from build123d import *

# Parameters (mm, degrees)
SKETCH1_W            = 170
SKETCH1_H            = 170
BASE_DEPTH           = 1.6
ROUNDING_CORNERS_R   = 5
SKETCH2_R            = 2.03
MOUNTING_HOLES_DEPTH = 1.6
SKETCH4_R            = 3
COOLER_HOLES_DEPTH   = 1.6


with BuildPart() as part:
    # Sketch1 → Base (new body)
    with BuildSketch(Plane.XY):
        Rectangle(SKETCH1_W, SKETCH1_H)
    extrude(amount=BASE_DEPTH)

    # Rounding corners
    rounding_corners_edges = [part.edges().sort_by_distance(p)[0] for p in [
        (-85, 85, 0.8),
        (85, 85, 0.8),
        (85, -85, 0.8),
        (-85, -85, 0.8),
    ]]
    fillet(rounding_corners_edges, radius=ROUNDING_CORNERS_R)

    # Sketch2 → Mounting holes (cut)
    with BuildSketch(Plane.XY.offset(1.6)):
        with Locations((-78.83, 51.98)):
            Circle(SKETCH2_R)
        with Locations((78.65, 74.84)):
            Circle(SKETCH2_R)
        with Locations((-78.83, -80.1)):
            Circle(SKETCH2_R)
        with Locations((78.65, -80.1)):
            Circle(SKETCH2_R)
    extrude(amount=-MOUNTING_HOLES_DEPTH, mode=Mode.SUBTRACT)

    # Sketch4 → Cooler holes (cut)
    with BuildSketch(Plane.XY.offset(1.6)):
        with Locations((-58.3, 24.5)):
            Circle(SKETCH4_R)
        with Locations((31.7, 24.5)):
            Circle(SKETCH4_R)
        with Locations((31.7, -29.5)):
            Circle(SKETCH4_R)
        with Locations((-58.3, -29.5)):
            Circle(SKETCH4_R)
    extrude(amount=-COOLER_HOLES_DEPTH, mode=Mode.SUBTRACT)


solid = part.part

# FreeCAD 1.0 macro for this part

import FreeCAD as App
import Part
import Sketcher
from FreeCAD import Vector


def edges_at(feature, points):
    """Names of the edges that pass closest to the given points."""
    edges = feature.Shape.Edges
    near = lambda p: min(range(len(edges)), key=lambda i: edges[i].distToShape(Part.Vertex(*p))[0])
    return sorted({f"Edge{near(p) + 1}" for p in points})


def add_polygon(sketch, points):
    """Adds a closed chain of lines whose ends are joined by coincident constraints."""
    first, n = sketch.GeometryCount, len(points)
    for a, b in zip(points, points[1:] + points[:1]):
        sketch.addGeometry(Part.LineSegment(App.Vector(*a, 0), App.Vector(*b, 0)), False)
    for i in range(n):
        sketch.addConstraint(Sketcher.Constraint("Coincident", first + i, 2, first + (i + 1) % n, 1))

doc = App.newDocument("Part")
body = doc.addObject("PartDesign::Body", "Body")

# Sketch on XY plane
sketch1 = doc.addObject("Sketcher::SketchObject", "Sketch")
body.addObject(sketch1)
sketch1.AttachmentSupport = (doc.XY_Plane, [""])
sketch1.MapMode = "FlatFace"
add_polygon(sketch1, [(-85, 85), (-85, -85), (85, -85), (85, 85)])  # lines 0-3
sketch1.addConstraint(Sketcher.Constraint("Vertical", 0))
sketch1.addConstraint(Sketcher.Constraint("Horizontal", 1))
sketch1.addConstraint(Sketcher.Constraint("Vertical", 2))
sketch1.addConstraint(Sketcher.Constraint("Horizontal", 3))
sketch1.addConstraint(Sketcher.Constraint("Symmetric", 0, 2, 2, 2, -1, 1))
sketch1.addConstraint(Sketcher.Constraint("Equal", 3, 0))
sketch1.addConstraint(Sketcher.Constraint("DistanceX", 1, 1, 1, 2, 170.0))
pad1 = doc.addObject("PartDesign::Pad", "Pad")
body.addObject(pad1)
pad1.Profile = sketch1
pad1.Length = 1.6
doc.recompute()

fillet = doc.addObject("PartDesign::Fillet", "Fillet")
body.addObject(fillet)
fillet.Base = (pad1, edges_at(pad1, [
    (-85, 85, 0.8),
    (85, 85, 0.8),
    (85, -85, 0.8),
    (-85, -85, 0.8),
]))
fillet.Radius = 5

# Sketch on XY plane
sketch2 = doc.addObject("Sketcher::SketchObject", "Sketch001")
body.addObject(sketch2)
sketch2.AttachmentSupport = (doc.XY_Plane, [""])
sketch2.MapMode = "FlatFace"
sketch2.AttachmentOffset = App.Placement(Vector(0, 0, 1.6), App.Rotation())
sketch2.addGeometry(Part.Circle(Vector(-78.8, 52, 0), Vector(0, 0, 1), 2), False)
sketch2.addGeometry(Part.Circle(Vector(78.7, 74.8, 0), Vector(0, 0, 1), 2), False)
sketch2.addGeometry(Part.Circle(Vector(-78.8, -80.1, 0), Vector(0, 0, 1), 2), False)
sketch2.addGeometry(Part.Circle(Vector(78.7, -80.1, 0), Vector(0, 0, 1), 2), False)
sketch2.addConstraint(Sketcher.Constraint("Equal", 0, 1))
sketch2.addConstraint(Sketcher.Constraint("Equal", 1, 2))
sketch2.addConstraint(Sketcher.Constraint("Equal", 2, 3))
sketch2.addConstraint(Sketcher.Constraint("Horizontal", 2, 3, 3, 3))
sketch2.addConstraint(Sketcher.Constraint("Vertical", 0, 3, 2, 3))
sketch2.addConstraint(Sketcher.Constraint("Vertical", 1, 3, 3, 3))
sketch2.addConstraint(Sketcher.Constraint("Diameter", 0, 4.06))
sketch2.addConstraint(Sketcher.Constraint("DistanceY", 2, 3, -1, 1, 80.1))
sketch2.addConstraint(Sketcher.Constraint("DistanceX", 0, 3, -1, 1, 78.83))
sketch2.addConstraint(Sketcher.Constraint("DistanceY", -1, 1, 0, 3, 51.98))
sketch2.addConstraint(Sketcher.Constraint("DistanceX", -1, 1, 1, 3, 78.65))
sketch2.addConstraint(Sketcher.Constraint("DistanceY", -1, 1, 1, 3, 74.84))
pocket1 = doc.addObject("PartDesign::Pocket", "Pocket")
body.addObject(pocket1)
pocket1.Profile = sketch2
pocket1.Length = 1.6

# Sketch on XY plane
sketch3 = doc.addObject("Sketcher::SketchObject", "Sketch002")
body.addObject(sketch3)
sketch3.AttachmentSupport = (doc.XY_Plane, [""])
sketch3.MapMode = "FlatFace"
sketch3.AttachmentOffset = App.Placement(Vector(0, 0, 1.6), App.Rotation())
sketch3.addGeometry(Part.Circle(Vector(-58.3, 24.5, 0), Vector(0, 0, 1), 3), False)
sketch3.addGeometry(Part.Circle(Vector(31.7, 24.5, 0), Vector(0, 0, 1), 3), False)
sketch3.addGeometry(Part.Circle(Vector(31.7, -29.5, 0), Vector(0, 0, 1), 3), False)
sketch3.addGeometry(Part.Circle(Vector(-58.3, -29.5, 0), Vector(0, 0, 1), 3), False)
sketch3.addConstraint(Sketcher.Constraint("Equal", 0, 1))
sketch3.addConstraint(Sketcher.Constraint("Equal", 1, 2))
sketch3.addConstraint(Sketcher.Constraint("Equal", 2, 3))
sketch3.addConstraint(Sketcher.Constraint("Horizontal", 0, 3, 1, 3))
sketch3.addConstraint(Sketcher.Constraint("Horizontal", 2, 3, 3, 3))
sketch3.addConstraint(Sketcher.Constraint("Vertical", 1, 3, 2, 3))
sketch3.addConstraint(Sketcher.Constraint("Vertical", 0, 3, 3, 3))
sketch3.addConstraint(Sketcher.Constraint("Diameter", 0, 6.0))
sketch3.addConstraint(Sketcher.Constraint("DistanceX", 0, 3, 1, 3, 90.0))
sketch3.addConstraint(Sketcher.Constraint("DistanceY", 2, 3, 1, 3, 54.0))
sketch3.addConstraint(Sketcher.Constraint("DistanceX", 0, 3, -1, 1, 58.3))
sketch3.addConstraint(Sketcher.Constraint("DistanceY", -1, 1, 0, 3, 24.5))
pocket2 = doc.addObject("PartDesign::Pocket", "Pocket001")
body.addObject(pocket2)
pocket2.Profile = sketch3
pocket2.Length = 1.6

doc.recompute()
